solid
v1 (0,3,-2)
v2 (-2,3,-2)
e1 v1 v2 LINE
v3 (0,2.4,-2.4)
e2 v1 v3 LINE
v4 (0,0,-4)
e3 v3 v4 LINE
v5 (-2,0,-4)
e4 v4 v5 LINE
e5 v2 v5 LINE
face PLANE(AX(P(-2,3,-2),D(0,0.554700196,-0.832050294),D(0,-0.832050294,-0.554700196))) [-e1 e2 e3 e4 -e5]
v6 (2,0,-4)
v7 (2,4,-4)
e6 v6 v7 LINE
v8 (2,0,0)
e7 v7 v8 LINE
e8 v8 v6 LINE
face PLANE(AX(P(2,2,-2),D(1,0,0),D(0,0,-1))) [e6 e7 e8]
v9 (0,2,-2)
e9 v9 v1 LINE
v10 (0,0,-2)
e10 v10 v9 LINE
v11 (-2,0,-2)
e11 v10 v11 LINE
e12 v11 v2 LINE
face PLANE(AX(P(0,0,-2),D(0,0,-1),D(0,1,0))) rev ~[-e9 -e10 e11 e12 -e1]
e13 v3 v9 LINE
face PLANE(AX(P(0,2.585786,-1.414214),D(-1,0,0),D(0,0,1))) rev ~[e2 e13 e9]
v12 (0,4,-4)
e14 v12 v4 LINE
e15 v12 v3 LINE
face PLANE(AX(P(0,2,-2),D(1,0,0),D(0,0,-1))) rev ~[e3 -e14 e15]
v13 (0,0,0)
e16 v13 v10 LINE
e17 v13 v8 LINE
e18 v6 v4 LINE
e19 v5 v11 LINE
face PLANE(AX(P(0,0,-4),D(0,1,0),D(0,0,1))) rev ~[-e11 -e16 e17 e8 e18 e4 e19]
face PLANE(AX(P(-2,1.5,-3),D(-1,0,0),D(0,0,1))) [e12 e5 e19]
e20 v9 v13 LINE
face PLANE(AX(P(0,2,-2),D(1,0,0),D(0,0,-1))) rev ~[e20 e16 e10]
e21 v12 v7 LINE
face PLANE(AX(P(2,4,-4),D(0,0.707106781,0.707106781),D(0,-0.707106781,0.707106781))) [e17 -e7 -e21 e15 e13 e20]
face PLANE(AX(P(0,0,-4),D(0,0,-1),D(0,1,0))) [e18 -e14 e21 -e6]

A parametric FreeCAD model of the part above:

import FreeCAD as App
import Part
import Sketcher

V = App.Vector
Q = App.Units.Quantity


def add_polygon(sketch, points):
    """Adds a closed chain of lines whose ends are joined by coincident constraints."""
    first, n = sketch.GeometryCount, len(points)
    for a, b in zip(points, points[1:] + points[:1]):
        sketch.addGeometry(Part.LineSegment(App.Vector(*a, 0), App.Vector(*b, 0)), False)
    for i in range(n):
        sketch.addConstraint(Sketcher.Constraint("Coincident", first + i, 2, first + (i + 1) % n, 1))

doc = App.newDocument("Part")
body = doc.addObject("PartDesign::Body", "Body")

sketch1 = body.newObject("Sketcher::SketchObject", "Sketch")
sketch1.AttachmentSupport = (doc.getObject("YZ_Plane"), [""])
sketch1.MapMode = "FlatFace"
add_polygon(sketch1, [(4, 0), (0, 0), (0, -4), (4, -4)])
sketch1.addConstraint([
    Sketcher.Constraint("Horizontal", 0),
    Sketcher.Constraint("Vertical", 1),
    Sketcher.Constraint("Horizontal", 2),
    Sketcher.Constraint("Vertical", 3),
    Sketcher.Constraint("Coincident", 0, 2, -1, 1),
    Sketcher.Constraint("Equal", 2, 1),
    Sketcher.Constraint("DistanceX", 0, 2, 0, 1, Q("4 mm")),
])
pad1 = body.newObject("PartDesign::Pad", "Pad")
pad1.Profile = sketch1
pad1.Length = 2

sketch2 = body.newObject("Sketcher::SketchObject", "Sketch001")
sketch2.AttachmentSupport = (doc.getObject("YZ_Plane"), [""])
sketch2.MapMode = "FlatFace"
add_polygon(sketch2, [(3, -4), (0, -4), (0, -2), (3, -2)])
sketch2.addConstraint([
    Sketcher.Constraint("Horizontal", 0),
    Sketcher.Constraint("Vertical", 1),
    Sketcher.Constraint("Horizontal", 2),
    Sketcher.Constraint("Vertical", 3),
    Sketcher.Constraint("PointOnObject", 0, 2, -2),
    Sketcher.Constraint("DistanceX", 0, 2, 0, 1, Q("3 mm")),
    Sketcher.Constraint("DistanceY", 1, 1, 1, 2, Q("2 mm")),
    Sketcher.Constraint("DistanceY", 0, 2, -1, 1, Q("4 mm")),
])
pad2 = body.newObject("PartDesign::Pad", "Pad001")
pad2.Profile = sketch2
pad2.Length = 2
pad2.Reversed = True

sketch3 = body.newObject("Sketcher::SketchObject", "Sketch002")
sketch3.AttachmentSupport = (doc.getObject("YZ_Plane"), [""])
sketch3.MapMode = "FlatFace"
sketch3.AttachmentOffset = App.Placement(V(0, 0, -2), App.Rotation())
add_polygon(sketch3, [(0, -4), (3, -2), (3, -4)])
sketch3.addConstraint([
    Sketcher.Constraint("Vertical", 1),
    Sketcher.Constraint("Horizontal", 2),
    Sketcher.Constraint("PointOnObject", 2, 2, -2),
    Sketcher.Constraint("DistanceX", 2, 2, 2, 1, Q("3 mm")),
    Sketcher.Constraint("DistanceY", 1, 2, 1, 1, Q("2 mm")),
    Sketcher.Constraint("DistanceY", 0, 2, -1, 1, Q("2 mm")),
])
pocket1 = body.newObject("PartDesign::Pocket", "Pocket")
pocket1.Profile = sketch3
pocket1.Length = 2
pocket1.Reversed = True

sketch4 = body.newObject("Sketcher::SketchObject", "Sketch003")
sketch4.AttachmentSupport = (doc.getObject("YZ_Plane"), [""])
sketch4.MapMode = "FlatFace"
sketch4.AttachmentOffset = App.Placement(V(0, 0, 2), App.Rotation())
add_polygon(sketch4, [(0, 0), (4, -4), (4, 0)])
sketch4.addConstraint([
    Sketcher.Constraint("Vertical", 1),
    Sketcher.Constraint("Horizontal", 2),
    Sketcher.Constraint("Coincident", 2, 2, -1, 1),
    Sketcher.Constraint("Equal", 2, 1),
    Sketcher.Constraint("DistanceX", 2, 2, 2, 1, Q("4 mm")),
])
pocket2 = body.newObject("PartDesign::Pocket", "Pocket001")
pocket2.Profile = sketch4
pocket2.Length = 2

doc.recompute()
